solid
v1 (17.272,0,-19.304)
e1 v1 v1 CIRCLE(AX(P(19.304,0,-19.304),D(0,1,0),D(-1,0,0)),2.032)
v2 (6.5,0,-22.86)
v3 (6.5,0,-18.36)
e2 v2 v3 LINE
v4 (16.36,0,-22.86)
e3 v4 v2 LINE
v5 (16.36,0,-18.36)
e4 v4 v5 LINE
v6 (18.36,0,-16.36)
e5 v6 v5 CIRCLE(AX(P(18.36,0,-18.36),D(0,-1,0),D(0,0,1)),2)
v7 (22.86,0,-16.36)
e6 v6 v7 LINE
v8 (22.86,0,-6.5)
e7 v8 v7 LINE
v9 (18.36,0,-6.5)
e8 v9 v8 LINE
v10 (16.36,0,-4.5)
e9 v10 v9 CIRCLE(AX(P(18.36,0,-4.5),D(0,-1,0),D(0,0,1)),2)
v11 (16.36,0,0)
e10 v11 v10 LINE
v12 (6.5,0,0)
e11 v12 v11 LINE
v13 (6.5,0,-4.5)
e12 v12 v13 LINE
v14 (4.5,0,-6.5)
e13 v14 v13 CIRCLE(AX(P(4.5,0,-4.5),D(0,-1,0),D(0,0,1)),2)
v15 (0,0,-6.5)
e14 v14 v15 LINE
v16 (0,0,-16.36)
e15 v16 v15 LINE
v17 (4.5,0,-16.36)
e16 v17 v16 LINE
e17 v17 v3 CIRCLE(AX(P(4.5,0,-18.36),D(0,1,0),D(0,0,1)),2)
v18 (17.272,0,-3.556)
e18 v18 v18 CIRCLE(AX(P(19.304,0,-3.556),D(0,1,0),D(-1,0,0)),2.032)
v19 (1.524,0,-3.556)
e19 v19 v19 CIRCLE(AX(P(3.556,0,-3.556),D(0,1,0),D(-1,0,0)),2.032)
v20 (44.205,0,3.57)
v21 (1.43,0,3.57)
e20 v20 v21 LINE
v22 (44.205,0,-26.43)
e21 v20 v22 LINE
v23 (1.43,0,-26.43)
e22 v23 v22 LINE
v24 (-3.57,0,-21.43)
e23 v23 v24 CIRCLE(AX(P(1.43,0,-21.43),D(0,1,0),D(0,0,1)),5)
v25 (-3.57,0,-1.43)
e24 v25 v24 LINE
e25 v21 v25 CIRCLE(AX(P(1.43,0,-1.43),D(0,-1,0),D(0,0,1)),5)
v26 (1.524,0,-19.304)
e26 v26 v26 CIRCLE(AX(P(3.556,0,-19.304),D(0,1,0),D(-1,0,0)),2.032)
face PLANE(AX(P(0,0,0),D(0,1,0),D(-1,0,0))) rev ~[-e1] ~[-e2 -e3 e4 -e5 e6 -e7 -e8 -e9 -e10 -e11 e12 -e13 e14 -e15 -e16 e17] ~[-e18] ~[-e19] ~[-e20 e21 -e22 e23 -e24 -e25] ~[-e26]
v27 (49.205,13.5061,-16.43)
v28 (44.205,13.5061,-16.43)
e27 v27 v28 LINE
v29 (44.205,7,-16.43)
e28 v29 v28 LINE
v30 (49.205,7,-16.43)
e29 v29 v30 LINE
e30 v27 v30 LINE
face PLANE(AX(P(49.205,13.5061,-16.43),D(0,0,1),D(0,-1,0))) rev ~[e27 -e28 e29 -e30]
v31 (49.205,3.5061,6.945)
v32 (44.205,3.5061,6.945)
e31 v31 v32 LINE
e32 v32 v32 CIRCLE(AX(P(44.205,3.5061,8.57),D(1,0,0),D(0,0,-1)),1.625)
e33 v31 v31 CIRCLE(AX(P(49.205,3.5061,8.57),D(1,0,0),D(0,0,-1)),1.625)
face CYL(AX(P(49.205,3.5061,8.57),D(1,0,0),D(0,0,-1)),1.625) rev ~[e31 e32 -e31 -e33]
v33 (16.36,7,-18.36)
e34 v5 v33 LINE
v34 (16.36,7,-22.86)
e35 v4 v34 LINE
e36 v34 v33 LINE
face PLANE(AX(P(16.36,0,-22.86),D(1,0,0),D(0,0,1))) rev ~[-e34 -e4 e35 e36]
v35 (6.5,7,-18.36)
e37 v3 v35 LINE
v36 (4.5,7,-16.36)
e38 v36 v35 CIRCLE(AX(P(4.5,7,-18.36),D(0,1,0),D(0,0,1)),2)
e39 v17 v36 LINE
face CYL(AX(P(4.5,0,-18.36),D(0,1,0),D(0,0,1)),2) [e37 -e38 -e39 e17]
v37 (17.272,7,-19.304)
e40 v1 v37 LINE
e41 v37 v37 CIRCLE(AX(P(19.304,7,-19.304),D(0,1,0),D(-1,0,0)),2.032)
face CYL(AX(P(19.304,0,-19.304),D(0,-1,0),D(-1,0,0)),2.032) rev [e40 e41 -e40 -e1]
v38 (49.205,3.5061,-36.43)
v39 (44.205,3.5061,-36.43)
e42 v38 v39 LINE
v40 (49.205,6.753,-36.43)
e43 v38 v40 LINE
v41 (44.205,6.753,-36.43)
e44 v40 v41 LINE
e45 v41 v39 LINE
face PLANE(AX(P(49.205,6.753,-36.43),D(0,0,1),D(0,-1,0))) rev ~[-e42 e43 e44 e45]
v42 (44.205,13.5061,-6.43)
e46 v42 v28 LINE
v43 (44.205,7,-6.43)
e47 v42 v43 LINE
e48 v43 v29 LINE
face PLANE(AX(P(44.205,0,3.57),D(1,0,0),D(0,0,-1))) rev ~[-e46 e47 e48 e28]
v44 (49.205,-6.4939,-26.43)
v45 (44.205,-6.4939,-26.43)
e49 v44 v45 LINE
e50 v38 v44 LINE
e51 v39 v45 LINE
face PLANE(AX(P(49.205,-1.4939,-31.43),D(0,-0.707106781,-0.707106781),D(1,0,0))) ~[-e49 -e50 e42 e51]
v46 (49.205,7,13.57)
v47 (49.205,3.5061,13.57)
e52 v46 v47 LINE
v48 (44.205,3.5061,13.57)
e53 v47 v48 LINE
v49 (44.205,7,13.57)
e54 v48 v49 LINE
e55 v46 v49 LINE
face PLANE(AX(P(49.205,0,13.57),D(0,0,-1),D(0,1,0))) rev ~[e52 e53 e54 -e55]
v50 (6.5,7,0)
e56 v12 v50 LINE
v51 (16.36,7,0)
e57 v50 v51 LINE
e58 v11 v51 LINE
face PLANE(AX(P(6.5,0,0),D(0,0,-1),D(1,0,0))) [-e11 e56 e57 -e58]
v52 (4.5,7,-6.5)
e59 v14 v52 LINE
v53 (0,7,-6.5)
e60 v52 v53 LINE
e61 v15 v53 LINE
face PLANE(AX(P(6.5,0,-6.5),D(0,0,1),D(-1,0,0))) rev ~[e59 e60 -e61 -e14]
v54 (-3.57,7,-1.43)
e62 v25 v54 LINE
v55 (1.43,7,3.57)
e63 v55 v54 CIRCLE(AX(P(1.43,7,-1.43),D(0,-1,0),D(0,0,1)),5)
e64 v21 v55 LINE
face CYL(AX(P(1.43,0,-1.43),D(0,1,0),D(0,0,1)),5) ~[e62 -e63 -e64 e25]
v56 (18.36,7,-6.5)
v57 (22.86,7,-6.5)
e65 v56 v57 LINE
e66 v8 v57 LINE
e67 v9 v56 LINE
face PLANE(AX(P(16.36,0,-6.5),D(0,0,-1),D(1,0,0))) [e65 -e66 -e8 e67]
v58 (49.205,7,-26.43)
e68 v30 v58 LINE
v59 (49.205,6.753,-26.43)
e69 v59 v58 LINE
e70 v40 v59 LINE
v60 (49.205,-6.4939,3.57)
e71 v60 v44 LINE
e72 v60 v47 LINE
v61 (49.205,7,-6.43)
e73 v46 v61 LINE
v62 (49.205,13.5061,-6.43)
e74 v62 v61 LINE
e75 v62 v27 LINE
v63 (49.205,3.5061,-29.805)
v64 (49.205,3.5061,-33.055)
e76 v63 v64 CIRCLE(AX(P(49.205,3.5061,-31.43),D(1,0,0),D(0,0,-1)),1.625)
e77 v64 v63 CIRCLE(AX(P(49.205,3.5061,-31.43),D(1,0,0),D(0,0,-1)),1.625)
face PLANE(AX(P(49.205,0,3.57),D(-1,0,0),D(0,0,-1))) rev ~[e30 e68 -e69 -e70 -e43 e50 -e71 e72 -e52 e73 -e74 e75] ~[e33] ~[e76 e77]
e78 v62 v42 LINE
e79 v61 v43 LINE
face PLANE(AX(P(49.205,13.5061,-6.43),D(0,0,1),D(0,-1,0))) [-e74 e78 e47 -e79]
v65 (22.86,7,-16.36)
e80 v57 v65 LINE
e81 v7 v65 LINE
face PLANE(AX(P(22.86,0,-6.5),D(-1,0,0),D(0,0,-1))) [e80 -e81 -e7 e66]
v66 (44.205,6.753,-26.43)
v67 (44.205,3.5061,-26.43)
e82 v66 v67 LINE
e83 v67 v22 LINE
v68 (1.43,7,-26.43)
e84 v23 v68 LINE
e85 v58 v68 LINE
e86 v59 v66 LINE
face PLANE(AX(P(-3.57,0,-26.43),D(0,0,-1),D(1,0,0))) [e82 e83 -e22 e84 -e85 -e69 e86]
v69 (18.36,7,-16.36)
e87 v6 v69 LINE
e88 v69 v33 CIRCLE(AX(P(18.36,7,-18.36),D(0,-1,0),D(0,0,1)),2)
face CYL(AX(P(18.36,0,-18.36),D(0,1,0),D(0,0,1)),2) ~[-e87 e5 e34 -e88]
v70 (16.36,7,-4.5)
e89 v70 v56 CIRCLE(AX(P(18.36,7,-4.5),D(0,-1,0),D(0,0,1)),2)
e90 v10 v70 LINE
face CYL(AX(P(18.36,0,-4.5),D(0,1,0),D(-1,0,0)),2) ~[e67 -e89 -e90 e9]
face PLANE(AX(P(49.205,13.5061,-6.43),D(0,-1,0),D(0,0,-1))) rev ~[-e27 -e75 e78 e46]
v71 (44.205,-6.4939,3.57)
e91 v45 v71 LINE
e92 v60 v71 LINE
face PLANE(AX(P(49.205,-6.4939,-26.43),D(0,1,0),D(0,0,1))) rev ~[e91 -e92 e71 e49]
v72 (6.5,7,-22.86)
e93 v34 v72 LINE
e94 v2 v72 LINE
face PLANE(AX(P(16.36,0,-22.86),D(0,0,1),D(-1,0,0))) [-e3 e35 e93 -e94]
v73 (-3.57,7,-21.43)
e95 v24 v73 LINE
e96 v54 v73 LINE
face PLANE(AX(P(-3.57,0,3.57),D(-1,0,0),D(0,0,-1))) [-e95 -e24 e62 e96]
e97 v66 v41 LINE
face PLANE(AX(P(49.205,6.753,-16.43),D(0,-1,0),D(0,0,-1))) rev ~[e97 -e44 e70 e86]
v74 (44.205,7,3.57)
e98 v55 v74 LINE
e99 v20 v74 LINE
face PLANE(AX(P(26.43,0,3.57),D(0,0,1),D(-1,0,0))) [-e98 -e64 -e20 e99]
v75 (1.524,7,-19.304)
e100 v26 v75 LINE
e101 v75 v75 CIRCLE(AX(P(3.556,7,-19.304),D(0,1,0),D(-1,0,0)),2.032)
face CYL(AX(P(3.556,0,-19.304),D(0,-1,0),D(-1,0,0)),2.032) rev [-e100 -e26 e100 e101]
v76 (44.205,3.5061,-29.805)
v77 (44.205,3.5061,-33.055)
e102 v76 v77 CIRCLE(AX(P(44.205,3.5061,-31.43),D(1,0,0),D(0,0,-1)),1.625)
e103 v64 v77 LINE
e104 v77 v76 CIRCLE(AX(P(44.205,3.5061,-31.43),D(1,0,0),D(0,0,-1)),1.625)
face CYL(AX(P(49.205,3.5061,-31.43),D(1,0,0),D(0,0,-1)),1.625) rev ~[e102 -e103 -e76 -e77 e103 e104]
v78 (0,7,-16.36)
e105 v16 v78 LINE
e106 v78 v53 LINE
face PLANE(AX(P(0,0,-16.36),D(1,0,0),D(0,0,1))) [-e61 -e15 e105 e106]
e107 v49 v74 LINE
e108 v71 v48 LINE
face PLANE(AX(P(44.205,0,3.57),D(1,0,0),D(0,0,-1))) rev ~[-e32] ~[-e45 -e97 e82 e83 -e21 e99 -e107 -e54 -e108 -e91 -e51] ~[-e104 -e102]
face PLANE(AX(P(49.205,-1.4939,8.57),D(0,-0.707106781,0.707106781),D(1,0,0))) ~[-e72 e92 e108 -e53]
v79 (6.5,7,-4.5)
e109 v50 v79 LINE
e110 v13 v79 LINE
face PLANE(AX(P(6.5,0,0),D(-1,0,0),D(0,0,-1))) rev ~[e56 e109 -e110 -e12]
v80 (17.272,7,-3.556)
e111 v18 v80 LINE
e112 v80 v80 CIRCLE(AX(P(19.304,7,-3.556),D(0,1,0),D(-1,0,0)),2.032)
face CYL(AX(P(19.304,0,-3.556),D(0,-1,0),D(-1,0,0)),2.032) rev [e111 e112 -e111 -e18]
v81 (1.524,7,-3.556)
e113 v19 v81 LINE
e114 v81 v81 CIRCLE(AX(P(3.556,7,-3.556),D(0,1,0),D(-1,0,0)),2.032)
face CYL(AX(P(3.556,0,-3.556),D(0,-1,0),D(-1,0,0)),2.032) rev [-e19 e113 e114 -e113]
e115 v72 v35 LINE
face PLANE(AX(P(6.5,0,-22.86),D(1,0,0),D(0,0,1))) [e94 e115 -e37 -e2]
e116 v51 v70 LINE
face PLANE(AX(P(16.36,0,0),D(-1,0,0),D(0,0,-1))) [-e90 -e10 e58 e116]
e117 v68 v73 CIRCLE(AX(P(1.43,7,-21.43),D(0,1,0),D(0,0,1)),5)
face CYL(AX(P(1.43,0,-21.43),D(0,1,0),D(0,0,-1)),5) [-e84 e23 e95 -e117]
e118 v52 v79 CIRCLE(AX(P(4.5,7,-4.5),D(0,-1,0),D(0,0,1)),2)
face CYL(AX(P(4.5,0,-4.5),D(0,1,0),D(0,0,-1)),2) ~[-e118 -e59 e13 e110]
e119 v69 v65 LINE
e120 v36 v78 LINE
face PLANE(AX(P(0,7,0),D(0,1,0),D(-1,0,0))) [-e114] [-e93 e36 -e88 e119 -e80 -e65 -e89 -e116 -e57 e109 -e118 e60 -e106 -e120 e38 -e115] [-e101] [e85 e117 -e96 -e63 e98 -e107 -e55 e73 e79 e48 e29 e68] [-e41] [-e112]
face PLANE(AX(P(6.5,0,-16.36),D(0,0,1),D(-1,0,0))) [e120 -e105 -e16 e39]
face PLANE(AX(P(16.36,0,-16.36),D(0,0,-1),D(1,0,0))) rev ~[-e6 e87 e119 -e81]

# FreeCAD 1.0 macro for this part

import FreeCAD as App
import Part
import Sketcher
Q = App.Units.Quantity


def edges_at(feature, points):
    """Names of the edges that pass closest to the given points."""
    edges = feature.Shape.Edges
    near = lambda p: min(range(len(edges)), key=lambda i: edges[i].distToShape(Part.Vertex(*p))[0])
    return sorted({f"Edge{near(p) + 1}" for p in points})

doc = App.newDocument("Part")
params = doc.addObject("Spreadsheet::Sheet", "Params")
for row, (alias, value) in enumerate([
    ("sketch1_height", "30 mm"),
    ("sketch1_width", "6.5 mm"),
    ("pad1_length", "7 mm"),
    ("fillet_radius", "2 mm"),
    ("sketch2_diameter", "3.25 mm"),
    ("sketch2_height", "10 mm"),
    ("sketch2_height2", "20 mm"),
    ("pad2_length", "5 mm"),
    ("fillet2_radius", "5 mm"),
    ("chamfer_size", "10 mm"),
], start=1):
    params.set(f"A{row}", alias)
    params.set(f"B{row}", "=" + value)
    params.setAlias(f"B{row}", alias)

body = doc.addObject("PartDesign::Body", "Body")

sketch1 = doc.addObject("Sketcher::SketchObject", "Sketch")
body.addObject(sketch1)
sketch1.AttachmentSupport = (doc.XZ_Plane, [""])
sketch1.MapMode = "FlatFace"
sketch1.addGeometry(Part.LineSegment(App.Vector(-3.57, -26.43, 0), App.Vector(-3.57, 3.57, 0)), False)
sketch1.addGeometry(Part.LineSegment(App.Vector(-3.57, 3.57, 0), App.Vector(49.205, 3.57, 0)), False)
sketch1.addGeometry(Part.LineSegment(App.Vector(49.205, 3.57, 0), App.Vector(49.205, -26.43, 0)), False)
sketch1.addGeometry(Part.LineSegment(App.Vector(49.205, -26.43, 0), App.Vector(-3.57, -26.43, 0)), False)
sketch1.addGeometry(Part.LineSegment(App.Vector(6.5, -6.5, 0), App.Vector(0, -6.5, 0)), False)
sketch1.addGeometry(Part.LineSegment(App.Vector(0, -6.5, 0), App.Vector(0, -16.36, 0)), False)
sketch1.addGeometry(Part.LineSegment(App.Vector(0, -16.36, 0), App.Vector(6.5, -16.36, 0)), False)
sketch1.addGeometry(Part.LineSegment(App.Vector(6.5, -16.36, 0), App.Vector(6.5, -22.86, 0)), False)
sketch1.addGeometry(Part.LineSegment(App.Vector(6.5, -22.86, 0), App.Vector(16.36, -22.86, 0)), False)
sketch1.addGeometry(Part.LineSegment(App.Vector(16.36, -22.86, 0), App.Vector(16.36, -16.36, 0)), False)
sketch1.addGeometry(Part.LineSegment(App.Vector(16.36, -16.36, 0), App.Vector(22.86, -16.36, 0)), False)
sketch1.addGeometry(Part.LineSegment(App.Vector(22.86, -16.36, 0), App.Vector(22.86, -6.5, 0)), False)
sketch1.addGeometry(Part.LineSegment(App.Vector(22.86, -6.5, 0), App.Vector(16.36, -6.5, 0)), False)
sketch1.addGeometry(Part.LineSegment(App.Vector(16.36, -6.5, 0), App.Vector(16.36, 0, 0)), False)
sketch1.addGeometry(Part.LineSegment(App.Vector(16.36, 0, 0), App.Vector(6.5, 0, 0)), False)
sketch1.addGeometry(Part.LineSegment(App.Vector(6.5, 0, 0), App.Vector(6.5, -6.5, 0)), False)
sketch1.addGeometry(Part.Circle(App.Vector(3.556, -3.556, 0), App.Vector(0, 0, 1), 2.032), False)
sketch1.addGeometry(Part.Circle(App.Vector(3.556, -19.304, 0), App.Vector(0, 0, 1), 2.032), False)
sketch1.addGeometry(Part.Circle(App.Vector(19.304, -3.556, 0), App.Vector(0, 0, 1), 2.032), False)
sketch1.addGeometry(Part.Circle(App.Vector(19.304, -19.304, 0), App.Vector(0, 0, 1), 2.032), False)
sketch1.addConstraint(Sketcher.Constraint("Coincident", 0, 2, 1, 1))
sketch1.addConstraint(Sketcher.Constraint("Coincident", 1, 2, 2, 1))
sketch1.addConstraint(Sketcher.Constraint("Coincident", 2, 2, 3, 1))
sketch1.addConstraint(Sketcher.Constraint("Coincident", 3, 2, 0, 1))
sketch1.addConstraint(Sketcher.Constraint("Coincident", 4, 2, 5, 1))
sketch1.addConstraint(Sketcher.Constraint("Coincident", 5, 2, 6, 1))
sketch1.addConstraint(Sketcher.Constraint("Coincident", 6, 2, 7, 1))
sketch1.addConstraint(Sketcher.Constraint("Coincident", 7, 2, 8, 1))
sketch1.addConstraint(Sketcher.Constraint("Coincident", 8, 2, 9, 1))
sketch1.addConstraint(Sketcher.Constraint("Coincident", 9, 2, 10, 1))
sketch1.addConstraint(Sketcher.Constraint("Coincident", 10, 2, 11, 1))
sketch1.addConstraint(Sketcher.Constraint("Coincident", 11, 2, 12, 1))
sketch1.addConstraint(Sketcher.Constraint("Coincident", 12, 2, 13, 1))
sketch1.addConstraint(Sketcher.Constraint("Coincident", 13, 2, 14, 1))
sketch1.addConstraint(Sketcher.Constraint("Coincident", 14, 2, 15, 1))
sketch1.addConstraint(Sketcher.Constraint("Coincident", 15, 2, 4, 1))
sketch1.addConstraint(Sketcher.Constraint("Vertical", 0))
sketch1.addConstraint(Sketcher.Constraint("Horizontal", 1))
sketch1.addConstraint(Sketcher.Constraint("Vertical", 2))
sketch1.addConstraint(Sketcher.Constraint("Horizontal", 3))
sketch1.addConstraint(Sketcher.Constraint("Horizontal", 4))
sketch1.addConstraint(Sketcher.Constraint("Vertical", 5))
sketch1.addConstraint(Sketcher.Constraint("Horizontal", 6))
sketch1.addConstraint(Sketcher.Constraint("Vertical", 7))
sketch1.addConstraint(Sketcher.Constraint("Horizontal", 8))
sketch1.addConstraint(Sketcher.Constraint("Vertical", 9))
sketch1.addConstraint(Sketcher.Constraint("Horizontal", 10))
sketch1.addConstraint(Sketcher.Constraint("Vertical", 11))
sketch1.addConstraint(Sketcher.Constraint("Horizontal", 12))
sketch1.addConstraint(Sketcher.Constraint("Vertical", 13))
sketch1.addConstraint(Sketcher.Constraint("Horizontal", 14))
sketch1.addConstraint(Sketcher.Constraint("Vertical", 15))
sketch1.addConstraint(Sketcher.Constraint("Equal", 16, 17))
sketch1.addConstraint(Sketcher.Constraint("Equal", 17, 18))
sketch1.addConstraint(Sketcher.Constraint("Equal", 18, 19))
sketch1.addConstraint(Sketcher.Constraint("PointOnObject", 4, 2, -2))
sketch1.addConstraint(Sketcher.Constraint("PointOnObject", 13, 2, -1))
sketch1.addConstraint(Sketcher.Constraint("Horizontal", 16, 3, 18, 3))
sketch1.addConstraint(Sketcher.Constraint("Horizontal", 17, 3, 19, 3))
sketch1.addConstraint(Sketcher.Constraint("Horizontal", 6, 2, 9, 2))
sketch1.addConstraint(Sketcher.Constraint("Horizontal", 4, 2, 11, 2))
sketch1.addConstraint(Sketcher.Constraint("Vertical", 16, 3, 17, 3))
sketch1.addConstraint(Sketcher.Constraint("Vertical", 18, 3, 19, 3))
sketch1.addConstraint(Sketcher.Constraint("Vertical", 9, 2, 12, 2))
sketch1.addConstraint(Sketcher.Constraint("Vertical", 7, 2, 14, 2))
sketch1.addConstraint(Sketcher.Constraint("Equal", 6, 10))
sketch1.addConstraint(Sketcher.Constraint("Equal", 14, 5))
sketch1.addConstraint(Sketcher.Constraint("Equal", 12, 7))
sketch1.addConstraint(Sketcher.Constraint("Equal", 9, 13))
sketch1.addConstraint(Sketcher.Constraint("DistanceY", 0, 1, 0, 2, Q("30 mm")))
sketch1.addConstraint(Sketcher.Constraint("Diameter", 16, Q("4.064 mm")))
sketch1.addConstraint(Sketcher.Constraint("DistanceX", 4, 2, 4, 1, Q("6.5 mm")))
sketch1.addConstraint(Sketcher.Constraint("DistanceX", 0, 2, -1, 1, Q("3.57 mm")))
sketch1.addConstraint(Sketcher.Constraint("DistanceY", -1, 1, 0, 2, Q("3.57 mm")))
sketch1.addConstraint(Sketcher.Constraint("DistanceY", 7, 2, -1, 1, Q("22.86 mm")))
sketch1.addConstraint(Sketcher.Constraint("DistanceX", -1, 1, 16, 3, Q("3.556 mm")))
sketch1.addConstraint(Sketcher.Constraint("DistanceY", 16, 3, -1, 1, Q("3.556 mm")))
sketch1.addConstraint(Sketcher.Constraint("DistanceY", 7, 2, 17, 3, Q("3.556 mm")))
sketch1.addConstraint(Sketcher.Constraint("DistanceX", 19, 3, 10, 2, Q("3.556 mm")))
sketch1.addConstraint(Sketcher.Constraint("DistanceX", 1, 1, 1, 2, Q("52.775 mm")))
sketch1.setExpression("Constraints[49]", "Params.sketch1_height")
sketch1.setExpression("Constraints[51]", "Params.sketch1_width")
pad1 = doc.addObject("PartDesign::Pad", "Pad")
body.addObject(pad1)
pad1.Profile = sketch1
pad1.setExpression("Length", "Params.pad1_length")
pad1.Reversed = True
doc.recompute()

fillet = doc.addObject("PartDesign::Fillet", "Fillet")
body.addObject(fillet)
fillet.Base = (pad1, edges_at(pad1, [
    (6.5, 3.5, -16.36),
    (16.36, 3.5, -16.36),
    (16.36, 3.5, -6.5),
    (6.5, 3.5, -6.5),
]))
fillet.setExpression("Radius", "Params.fillet_radius")

sketch2 = doc.addObject("Sketcher::SketchObject", "Sketch001")
body.addObject(sketch2)
sketch2.AttachmentSupport = (doc.YZ_Plane, [""])
sketch2.MapMode = "FlatFace"
sketch2.AttachmentOffset = App.Placement(App.Vector(0, 0, 49.205), App.Rotation())
sketch2.addGeometry(Part.LineSegment(App.Vector(13.5061, -16.43, 0), App.Vector(13.5061, -6.43, 0)), False)
sketch2.addGeometry(Part.LineSegment(App.Vector(13.5061, -6.43, 0), App.Vector(7, -6.43, 0)), False)
sketch2.addGeometry(Part.LineSegment(App.Vector(7, -6.43, 0), App.Vector(7, 13.57, 0)), False)
sketch2.addGeometry(Part.LineSegment(App.Vector(7, 13.57, 0), App.Vector(-6.4939, 13.57, 0)), False)
sketch2.addGeometry(Part.LineSegment(App.Vector(-6.4939, 13.57, 0), App.Vector(-6.4939, -36.43, 0)), False)
sketch2.addGeometry(Part.LineSegment(App.Vector(-6.4939, -36.43, 0), App.Vector(6.753, -36.43, 0)), False)
sketch2.addGeometry(Part.LineSegment(App.Vector(6.753, -36.43, 0), App.Vector(6.753, -16.43, 0)), False)
sketch2.addGeometry(Part.LineSegment(App.Vector(6.753, -16.43, 0), App.Vector(13.5061, -16.43, 0)), False)
sketch2.addGeometry(Part.Circle(App.Vector(3.5061, 8.57, 0), App.Vector(0, 0, 1), 1.625), False)
sketch2.addGeometry(Part.Circle(App.Vector(3.5061, -31.43, 0), App.Vector(0, 0, 1), 1.625), False)
sketch2.addConstraint(Sketcher.Constraint("Coincident", 0, 2, 1, 1))
sketch2.addConstraint(Sketcher.Constraint("Coincident", 1, 2, 2, 1))
sketch2.addConstraint(Sketcher.Constraint("Coincident", 2, 2, 3, 1))
sketch2.addConstraint(Sketcher.Constraint("Coincident", 3, 2, 4, 1))
sketch2.addConstraint(Sketcher.Constraint("Coincident", 4, 2, 5, 1))
sketch2.addConstraint(Sketcher.Constraint("Coincident", 5, 2, 6, 1))
sketch2.addConstraint(Sketcher.Constraint("Coincident", 6, 2, 7, 1))
sketch2.addConstraint(Sketcher.Constraint("Coincident", 7, 2, 0, 1))
sketch2.addConstraint(Sketcher.Constraint("Vertical", 0))
sketch2.addConstraint(Sketcher.Constraint("Horizontal", 1))
sketch2.addConstraint(Sketcher.Constraint("Vertical", 2))
sketch2.addConstraint(Sketcher.Constraint("Horizontal", 3))
sketch2.addConstraint(Sketcher.Constraint("Vertical", 4))
sketch2.addConstraint(Sketcher.Constraint("Horizontal", 5))
sketch2.addConstraint(Sketcher.Constraint("Vertical", 6))
sketch2.addConstraint(Sketcher.Constraint("Horizontal", 7))
sketch2.addConstraint(Sketcher.Constraint("Equal", 8, 9))
sketch2.addConstraint(Sketcher.Constraint("Vertical", 8, 3, 9, 3))
sketch2.addConstraint(Sketcher.Constraint("Equal", 2, 6))
sketch2.addConstraint(Sketcher.Constraint("Diameter", 8, Q("3.25 mm")))
sketch2.addConstraint(Sketcher.Constraint("DistanceY", 0, 1, 0, 2, Q("10 mm")))
sketch2.addConstraint(Sketcher.Constraint("DistanceY", 2, 1, 2, 2, Q("20 mm")))
sketch2.addConstraint(Sketcher.Constraint("DistanceX", 8, 3, 0, 2, Q("10 mm")))
sketch2.addConstraint(Sketcher.Constraint("DistanceY", 0, 2, 8, 3, Q("15 mm")))
sketch2.addConstraint(Sketcher.Constraint("DistanceX", 3, 2, 8, 3, Q("10 mm")))
sketch2.addConstraint(Sketcher.Constraint("DistanceY", 9, 3, 6, 2, Q("15 mm")))
sketch2.addConstraint(Sketcher.Constraint("DistanceX", -1, 1, 1, 2, Q("7 mm")))
sketch2.addConstraint(Sketcher.Constraint("DistanceX", 1, 2, 1, 1, Q("6.506 mm")))
sketch2.addConstraint(Sketcher.Constraint("DistanceX", 5, 1, 5, 2, Q("13.247 mm")))
sketch2.addConstraint(Sketcher.Constraint("DistanceY", -1, 1, 8, 3, Q("8.57 mm")))
sketch2.setExpression("Constraints[19]", "Params.sketch2_diameter")
sketch2.setExpression("Constraints[20]", "Params.sketch2_height")
sketch2.setExpression("Constraints[21]", "Params.sketch2_height2")
pad2 = doc.addObject("PartDesign::Pad", "Pad001")
body.addObject(pad2)
pad2.Profile = sketch2
pad2.setExpression("Length", "Params.pad2_length")
pad2.Reversed = True
doc.recompute()

fillet2 = doc.addObject("PartDesign::Fillet", "Fillet001")
body.addObject(fillet2)
fillet2.Base = (pad2, edges_at(pad2, [(-3.57, 3.5, -26.43), (-3.57, 3.5, 3.57)]))
fillet2.setExpression("Radius", "Params.fillet2_radius")
doc.recompute()

chamfer = doc.addObject("PartDesign::Chamfer", "Chamfer")
body.addObject(chamfer)
chamfer.Base = (fillet2, edges_at(fillet2, [(46.705, -6.494, 13.57), (46.705, -6.494, -36.43)]))
chamfer.setExpression("Size", "Params.chamfer_size")

doc.recompute()
